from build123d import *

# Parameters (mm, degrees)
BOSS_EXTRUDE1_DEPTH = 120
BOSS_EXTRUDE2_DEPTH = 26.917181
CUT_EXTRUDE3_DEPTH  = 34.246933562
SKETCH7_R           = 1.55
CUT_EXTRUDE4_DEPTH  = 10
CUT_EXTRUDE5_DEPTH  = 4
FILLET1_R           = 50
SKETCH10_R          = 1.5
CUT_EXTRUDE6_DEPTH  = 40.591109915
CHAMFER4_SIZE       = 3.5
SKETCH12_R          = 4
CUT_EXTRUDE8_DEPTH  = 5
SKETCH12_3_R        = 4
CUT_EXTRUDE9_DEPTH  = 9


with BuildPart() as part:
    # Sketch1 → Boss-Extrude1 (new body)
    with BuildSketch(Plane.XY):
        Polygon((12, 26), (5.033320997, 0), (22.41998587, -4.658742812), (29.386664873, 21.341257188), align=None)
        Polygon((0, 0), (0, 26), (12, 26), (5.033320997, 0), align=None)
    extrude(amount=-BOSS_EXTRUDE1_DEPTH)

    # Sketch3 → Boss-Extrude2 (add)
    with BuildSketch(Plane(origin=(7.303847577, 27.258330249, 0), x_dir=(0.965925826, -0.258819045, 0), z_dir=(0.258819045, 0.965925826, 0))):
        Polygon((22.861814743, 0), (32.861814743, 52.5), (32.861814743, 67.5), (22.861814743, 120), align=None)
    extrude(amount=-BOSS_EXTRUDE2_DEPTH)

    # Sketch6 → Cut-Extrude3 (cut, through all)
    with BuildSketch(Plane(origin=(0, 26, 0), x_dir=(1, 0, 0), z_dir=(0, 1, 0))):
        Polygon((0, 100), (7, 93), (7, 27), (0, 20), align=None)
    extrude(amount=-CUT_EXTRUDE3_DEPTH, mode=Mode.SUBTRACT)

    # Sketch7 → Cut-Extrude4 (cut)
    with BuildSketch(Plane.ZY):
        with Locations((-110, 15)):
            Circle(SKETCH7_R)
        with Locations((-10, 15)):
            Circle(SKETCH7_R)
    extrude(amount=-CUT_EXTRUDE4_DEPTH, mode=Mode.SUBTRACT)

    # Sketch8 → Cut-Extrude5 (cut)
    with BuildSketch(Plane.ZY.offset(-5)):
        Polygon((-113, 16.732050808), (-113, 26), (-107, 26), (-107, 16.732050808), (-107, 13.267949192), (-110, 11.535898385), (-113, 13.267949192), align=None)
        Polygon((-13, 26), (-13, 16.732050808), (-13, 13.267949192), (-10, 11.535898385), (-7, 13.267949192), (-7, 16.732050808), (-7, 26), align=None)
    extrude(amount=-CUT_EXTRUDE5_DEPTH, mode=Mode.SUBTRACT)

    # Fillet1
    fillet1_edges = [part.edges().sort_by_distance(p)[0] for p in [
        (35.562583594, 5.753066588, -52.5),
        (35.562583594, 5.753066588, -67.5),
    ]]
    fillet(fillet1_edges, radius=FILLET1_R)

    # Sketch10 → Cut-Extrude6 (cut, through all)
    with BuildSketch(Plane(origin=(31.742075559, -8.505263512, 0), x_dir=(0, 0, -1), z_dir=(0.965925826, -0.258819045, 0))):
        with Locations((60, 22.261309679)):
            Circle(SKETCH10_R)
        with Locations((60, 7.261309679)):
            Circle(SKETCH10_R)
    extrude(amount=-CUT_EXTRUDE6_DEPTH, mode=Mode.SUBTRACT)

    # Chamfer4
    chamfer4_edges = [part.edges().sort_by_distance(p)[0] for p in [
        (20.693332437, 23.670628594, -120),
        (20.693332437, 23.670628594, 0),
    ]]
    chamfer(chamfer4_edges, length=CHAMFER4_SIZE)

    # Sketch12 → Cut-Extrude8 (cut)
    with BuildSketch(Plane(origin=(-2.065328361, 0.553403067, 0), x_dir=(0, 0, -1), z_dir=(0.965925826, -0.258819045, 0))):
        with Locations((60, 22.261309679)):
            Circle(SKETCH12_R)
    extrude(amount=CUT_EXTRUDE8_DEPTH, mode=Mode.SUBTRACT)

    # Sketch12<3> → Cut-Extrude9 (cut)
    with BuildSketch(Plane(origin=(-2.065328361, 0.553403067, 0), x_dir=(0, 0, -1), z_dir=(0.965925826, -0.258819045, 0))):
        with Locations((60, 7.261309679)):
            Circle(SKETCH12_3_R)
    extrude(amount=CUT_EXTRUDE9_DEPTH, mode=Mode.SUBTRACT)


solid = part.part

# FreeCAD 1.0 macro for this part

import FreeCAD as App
import Part
import Sketcher
from FreeCAD import Vector
Q = App.Units.Quantity


def edges_at(feature, points):
    """Names of the edges that pass closest to the given points."""
    edges = feature.Shape.Edges
    near = lambda p: min(range(len(edges)), key=lambda i: edges[i].distToShape(Part.Vertex(*p))[0])
    return sorted({f"Edge{near(p) + 1}" for p in points})


def add_polygon(sketch, points):
    """Adds a closed chain of lines whose ends are joined by coincident constraints."""
    first, n = sketch.GeometryCount, len(points)
    for a, b in zip(points, points[1:] + points[:1]):
        sketch.addGeometry(Part.LineSegment(App.Vector(*a, 0), App.Vector(*b, 0)), False)
    for i in range(n):
        sketch.addConstraint(Sketcher.Constraint("Coincident", first + i, 2, first + (i + 1) % n, 1))

doc = App.newDocument("Part")
params = doc.addObject("Spreadsheet::Sheet", "Params")
for row, (alias, value) in enumerate([
    ("sketch1_width", "12 mm"),
    ("sketch1_height", "26 mm"),
    ("sketch1_length", "18 mm"),
    ("pad1_length", "120 mm"),
    ("sketch2_height", "15 mm"),
    ("sketch2_height2", "120 mm"),
    ("pad2_length", "26.917181 mm"),
    ("sketch3_height", "80 mm"),
    ("sketch3_height2", "66 mm"),
    ("sketch4_diameter", "3.1 mm"),
    ("pocket2_length", "10 mm"),
    ("sketch5_height", "6 mm"),
    ("pocket3_length", "4 mm"),
    ("fillet_radius", "50 mm"),
    ("sketch6_diameter", "3 mm"),
    ("chamfer_size", "3.5 mm"),
    ("sketch7_diameter", "8 mm"),
    ("pocket5_length", "5 mm"),
    ("sketch8_diameter", "8 mm"),
    ("pocket6_length", "9 mm"),
], start=1):
    params.set(f"A{row}", alias)
    params.set(f"B{row}", "=" + value)
    params.setAlias(f"B{row}", alias)

body = doc.addObject("PartDesign::Body", "Body")

# Sketch on XY plane
sketch1 = body.newObject("Sketcher::SketchObject", "Sketch")
sketch1.AttachmentSupport = (doc.getObject("XY_Plane"), [""])
sketch1.MapMode = "FlatFace"
add_polygon(sketch1, [(5.033321, 0), (22.419986, -4.658743), (29.386665, 21.341257), (12, 26), (0, 26), (0, 0)])  # lines 0-5
sketch1.addConstraint(Sketcher.Constraint("Horizontal", 3))
sketch1.addConstraint(Sketcher.Constraint("Vertical", 4))
sketch1.addConstraint(Sketcher.Constraint("Horizontal", 5))
sketch1.addConstraint(Sketcher.Constraint("Coincident", 4, 2, -1, 1))
sketch1.addConstraint(Sketcher.Constraint("Perpendicular", 0, 1))
sketch1.addConstraint(Sketcher.Constraint("Perpendicular", 1, 2))
sketch1.addConstraint(Sketcher.Constraint("Equal", 0, 2))
sketch1.addConstraint(Sketcher.Constraint("DistanceX", 3, 2, 3, 1, Q("12 mm")))
sketch1.addConstraint(Sketcher.Constraint("DistanceY", 4, 2, 4, 1, Q("26 mm")))
sketch1.addConstraint(Sketcher.Constraint("Angle", 0, Q("-15 deg")))
sketch1.addConstraint(Sketcher.Constraint("Distance", 0, Q("18 mm")))
sketch1.setExpression("Constraints[13]", "Params.sketch1_width")
sketch1.setExpression("Constraints[14]", "Params.sketch1_height")
sketch1.setExpression("Constraints[16]", "Params.sketch1_length")
pad1 = body.newObject("PartDesign::Pad", "Pad")
pad1.Profile = sketch1
pad1.setExpression("Length", "Params.pad1_length")
pad1.Reversed = True

# Sketch on an angled plane
sketch2 = body.newObject("Sketcher::SketchObject", "Sketch001")
sketch2.Placement = App.Placement(Vector(7.303848, 27.25833, 0), App.Rotation(Vector(0.965925826, -0.258819045, 0), Vector(0, 0, -0.999999999), Vector(0.258819045, 0.965925826, 0), "ZXY"))
add_polygon(sketch2, [(22.861815, 0), (32.861815, 52.5), (32.861815, 67.5), (22.861815, 120)])  # lines 0-3
sketch2.addConstraint(Sketcher.Constraint("Vertical", 1))
sketch2.addConstraint(Sketcher.Constraint("Vertical", 3))
sketch2.addConstraint(Sketcher.Constraint("PointOnObject", 3, 2, -1))
sketch2.addConstraint(Sketcher.Constraint("Equal", 0, 2))
sketch2.addConstraint(Sketcher.Constraint("DistanceY", 1, 1, 1, 2, Q("15 mm")))
sketch2.addConstraint(Sketcher.Constraint("DistanceY", 3, 2, 3, 1, Q("120 mm")))
sketch2.addConstraint(Sketcher.Constraint("DistanceX", 2, 2, 1, 2, Q("10 mm")))
sketch2.addConstraint(Sketcher.Constraint("DistanceX", -1, 1, 0, 2, Q("32.861815 mm")))
sketch2.setExpression("Constraints[8]", "Params.sketch2_height")
sketch2.setExpression("Constraints[9]", "Params.sketch2_height2")
pad2 = body.newObject("PartDesign::Pad", "Pad001")
pad2.Profile = sketch2
pad2.setExpression("Length", "Params.pad2_length")
pad2.Reversed = True

# Sketch on XZ plane
sketch3 = body.newObject("Sketcher::SketchObject", "Sketch002")
sketch3.AttachmentSupport = (doc.getObject("XZ_Plane"), [""])
sketch3.MapMode = "FlatFace"
sketch3.AttachmentOffset = App.Placement(Vector(0, 0, -26), App.Rotation())
add_polygon(sketch3, [(7, -93), (0, -100), (0, -20), (7, -27)])  # lines 0-3
sketch3.addConstraint(Sketcher.Constraint("Vertical", 1))
sketch3.addConstraint(Sketcher.Constraint("Vertical", 3))
sketch3.addConstraint(Sketcher.Constraint("PointOnObject", 0, 2, -2))
sketch3.addConstraint(Sketcher.Constraint("Perpendicular", 0, 2))
sketch3.addConstraint(Sketcher.Constraint("Equal", 0, 2))
sketch3.addConstraint(Sketcher.Constraint("DistanceY", 1, 1, 1, 2, Q("80 mm")))
sketch3.addConstraint(Sketcher.Constraint("DistanceY", 3, 2, 3, 1, Q("66 mm")))
sketch3.addConstraint(Sketcher.Constraint("DistanceY", 0, 2, -1, 1, Q("100 mm")))
sketch3.setExpression("Constraints[9]", "Params.sketch3_height")
sketch3.setExpression("Constraints[10]", "Params.sketch3_height2")
pocket1 = body.newObject("PartDesign::Pocket", "Pocket")
pocket1.Profile = sketch3
pocket1.Type = "ThroughAll"
pocket1.Reversed = True

# Sketch on YZ plane
sketch4 = body.newObject("Sketcher::SketchObject", "Sketch003")
sketch4.AttachmentSupport = (doc.getObject("YZ_Plane"), [""])
sketch4.MapMode = "FlatFace"
sketch4.addGeometry(Part.Circle(Vector(15, -110, 0), Vector(0, 0, 1), 1.55), False)
sketch4.addGeometry(Part.Circle(Vector(15, -10, 0), Vector(0, 0, 1), 1.55), False)
sketch4.addConstraint(Sketcher.Constraint("Equal", 0, 1))
sketch4.addConstraint(Sketcher.Constraint("Vertical", 0, 3, 1, 3))
sketch4.addConstraint(Sketcher.Constraint("Diameter", 0, Q("3.1 mm")))
sketch4.addConstraint(Sketcher.Constraint("DistanceX", -1, 1, 0, 3, Q("15 mm")))
sketch4.addConstraint(Sketcher.Constraint("DistanceY", 0, 3, -1, 1, Q("110 mm")))
sketch4.addConstraint(Sketcher.Constraint("DistanceY", 1, 3, -1, 1, Q("10 mm")))
sketch4.setExpression("Constraints[2]", "Params.sketch4_diameter")
pocket2 = body.newObject("PartDesign::Pocket", "Pocket001")
pocket2.Profile = sketch4
pocket2.setExpression("Length", "Params.pocket2_length")
pocket2.Reversed = True

# Sketch on YZ plane
sketch5 = body.newObject("Sketcher::SketchObject", "Sketch004")
sketch5.AttachmentSupport = (doc.getObject("YZ_Plane"), [""])
sketch5.MapMode = "FlatFace"
sketch5.AttachmentOffset = App.Placement(Vector(0, 0, 5), App.Rotation())
add_polygon(sketch5, [(26, -113), (13.267949, -113), (11.535898, -110), (13.267949, -107), (26, -107)])  # lines 0-4
add_polygon(sketch5, [(26, -13), (13.267949, -13), (11.535898, -10), (13.267949, -7), (26, -7)])  # lines 5-9
sketch5.addConstraint(Sketcher.Constraint("Horizontal", 0))
sketch5.addConstraint(Sketcher.Constraint("Horizontal", 3))
sketch5.addConstraint(Sketcher.Constraint("Vertical", 4))
sketch5.addConstraint(Sketcher.Constraint("Horizontal", 5))
sketch5.addConstraint(Sketcher.Constraint("Horizontal", 8))
sketch5.addConstraint(Sketcher.Constraint("Vertical", 9))
sketch5.addConstraint(Sketcher.Constraint("Parallel", 1, 6))
sketch5.addConstraint(Sketcher.Constraint("Parallel", 2, 7))
sketch5.addConstraint(Sketcher.Constraint("Vertical", 0, 2, 2, 2))
sketch5.addConstraint(Sketcher.Constraint("Vertical", 2, 2, 5, 2))
sketch5.addConstraint(Sketcher.Constraint("Vertical", 1, 2, 6, 2))
sketch5.addConstraint(Sketcher.Constraint("Vertical", 5, 2, 7, 2))
sketch5.addConstraint(Sketcher.Constraint("Vertical", 4, 2, 8, 2))
sketch5.addConstraint(Sketcher.Constraint("Equal", 1, 2))
sketch5.addConstraint(Sketcher.Constraint("DistanceY", 4, 2, 4, 1, Q("6 mm")))
sketch5.addConstraint(Sketcher.Constraint("Angle", 1, Q("120 deg")))
sketch5.addConstraint(Sketcher.Constraint("DistanceY", 0, 2, -1, 1, Q("113 mm")))
sketch5.addConstraint(Sketcher.Constraint("DistanceX", -1, 1, 3, 2, Q("26 mm")))
sketch5.addConstraint(Sketcher.Constraint("DistanceY", 5, 2, -1, 1, Q("13 mm")))
sketch5.addConstraint(Sketcher.Constraint("DistanceX", 0, 2, 0, 1, Q("12.732051 mm")))
sketch5.setExpression("Constraints[24]", "Params.sketch5_height")
pocket3 = body.newObject("PartDesign::Pocket", "Pocket002")
pocket3.Profile = sketch5
pocket3.setExpression("Length", "Params.pocket3_length")
pocket3.Reversed = True
doc.recompute()

fillet = body.newObject("PartDesign::Fillet", "Fillet")
fillet.Base = (pocket3, edges_at(pocket3, [(35.563, 5.753, -52.5), (35.563, 5.753, -67.5)]))
fillet.setExpression("Radius", "Params.fillet_radius")

# Sketch on an angled plane
sketch6 = body.newObject("Sketcher::SketchObject", "Sketch005")
sketch6.Placement = App.Placement(Vector(31.742076, -8.505264, 0), App.Rotation(Vector(0, 0, -1), Vector(0.258819045, 0.965925826, 0), Vector(0.965925826, -0.258819045, 0), "ZXY"))
sketch6.addGeometry(Part.Circle(Vector(60, 22.26131, 0), Vector(0, 0, 1), 1.5), False)
sketch6.addGeometry(Part.Circle(Vector(60, 7.26131, 0), Vector(0, 0, 1), 1.5), False)
sketch6.addConstraint(Sketcher.Constraint("Equal", 0, 1))
sketch6.addConstraint(Sketcher.Constraint("Vertical", 0, 3, 1, 3))
sketch6.addConstraint(Sketcher.Constraint("Diameter", 0, Q("3 mm")))
sketch6.addConstraint(Sketcher.Constraint("DistanceX", -1, 1, 0, 3, Q("60 mm")))
sketch6.addConstraint(Sketcher.Constraint("DistanceY", 1, 3, 0, 3, Q("15 mm")))
sketch6.addConstraint(Sketcher.Constraint("DistanceY", -1, 1, 0, 3, Q("22.26131 mm")))
sketch6.setExpression("Constraints[2]", "Params.sketch6_diameter")
pocket4 = body.newObject("PartDesign::Pocket", "Pocket003")
pocket4.Profile = sketch6
pocket4.Type = "ThroughAll"
doc.recompute()

chamfer = body.newObject("PartDesign::Chamfer", "Chamfer")
chamfer.Base = (pocket4, edges_at(pocket4, [(20.693, 23.671, -120), (20.693, 23.671, 0)]))
chamfer.setExpression("Size", "Params.chamfer_size")

# Sketch on an angled plane
sketch7 = body.newObject("Sketcher::SketchObject", "Sketch006")
sketch7.Placement = App.Placement(Vector(-2.065328, 0.553403, 0), App.Rotation(Vector(0, 0, -1), Vector(0.258819045, 0.965925826, 0), Vector(0.965925826, -0.258819045, 0), "ZXY"))
sketch7.addGeometry(Part.Circle(Vector(60, 22.26131, 0), Vector(0, 0, 1), 4), False)
sketch7.addConstraint(Sketcher.Constraint("Diameter", 0, Q("8 mm")))
sketch7.addConstraint(Sketcher.Constraint("DistanceX", -1, 1, 0, 3, Q("60 mm")))
sketch7.addConstraint(Sketcher.Constraint("DistanceY", -1, 1, 0, 3, Q("22.26131 mm")))
sketch7.setExpression("Constraints[0]", "Params.sketch7_diameter")
pocket5 = body.newObject("PartDesign::Pocket", "Pocket004")
pocket5.Profile = sketch7
pocket5.setExpression("Length", "Params.pocket5_length")
pocket5.Reversed = True

# Sketch on an angled plane
sketch8 = body.newObject("Sketcher::SketchObject", "Sketch007")
sketch8.Placement = App.Placement(Vector(-2.065328, 0.553403, 0), App.Rotation(Vector(0, 0, -1), Vector(0.258819045, 0.965925826, 0), Vector(0.965925826, -0.258819045, 0), "ZXY"))
sketch8.addGeometry(Part.Circle(Vector(60, 7.26131, 0), Vector(0, 0, 1), 4), False)
sketch8.addConstraint(Sketcher.Constraint("Diameter", 0, Q("8 mm")))
sketch8.addConstraint(Sketcher.Constraint("DistanceX", -1, 1, 0, 3, Q("60 mm")))
sketch8.addConstraint(Sketcher.Constraint("DistanceY", -1, 1, 0, 3, Q("7.26131 mm")))
sketch8.setExpression("Constraints[0]", "Params.sketch8_diameter")
pocket6 = body.newObject("PartDesign::Pocket", "Pocket005")
pocket6.Profile = sketch8
pocket6.setExpression("Length", "Params.pocket6_length")
pocket6.Reversed = True

doc.recompute()
